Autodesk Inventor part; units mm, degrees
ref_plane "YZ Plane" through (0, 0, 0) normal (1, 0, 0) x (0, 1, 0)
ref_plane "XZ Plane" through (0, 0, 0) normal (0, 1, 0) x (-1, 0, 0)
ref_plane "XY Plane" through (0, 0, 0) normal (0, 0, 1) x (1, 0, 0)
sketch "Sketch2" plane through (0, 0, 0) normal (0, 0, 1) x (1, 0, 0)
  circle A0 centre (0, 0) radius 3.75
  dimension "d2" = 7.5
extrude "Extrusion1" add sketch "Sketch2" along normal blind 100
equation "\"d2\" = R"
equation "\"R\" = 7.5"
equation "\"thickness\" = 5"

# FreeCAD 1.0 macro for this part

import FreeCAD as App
import Part
import Sketcher

doc = App.newDocument("Part")
body = doc.addObject("PartDesign::Body", "Body")

# Sketch on XY plane
sketch1 = doc.addObject("Sketcher::SketchObject", "Sketch")
body.addObject(sketch1)
sketch1.AttachmentSupport = (doc.XY_Plane, [""])
sketch1.MapMode = "FlatFace"
sketch1.addGeometry(Part.Circle(App.Vector(0, 0, 0), App.Vector(0, 0, 1), 3.8), False)
sketch1.addConstraint(Sketcher.Constraint("Coincident", 0, 3, -1, 1))
sketch1.addConstraint(Sketcher.Constraint("Diameter", 0, 7.5))
pad1 = doc.addObject("PartDesign::Pad", "Pad")
body.addObject(pad1)
pad1.Profile = sketch1
pad1.Length = 100

doc.recompute()
